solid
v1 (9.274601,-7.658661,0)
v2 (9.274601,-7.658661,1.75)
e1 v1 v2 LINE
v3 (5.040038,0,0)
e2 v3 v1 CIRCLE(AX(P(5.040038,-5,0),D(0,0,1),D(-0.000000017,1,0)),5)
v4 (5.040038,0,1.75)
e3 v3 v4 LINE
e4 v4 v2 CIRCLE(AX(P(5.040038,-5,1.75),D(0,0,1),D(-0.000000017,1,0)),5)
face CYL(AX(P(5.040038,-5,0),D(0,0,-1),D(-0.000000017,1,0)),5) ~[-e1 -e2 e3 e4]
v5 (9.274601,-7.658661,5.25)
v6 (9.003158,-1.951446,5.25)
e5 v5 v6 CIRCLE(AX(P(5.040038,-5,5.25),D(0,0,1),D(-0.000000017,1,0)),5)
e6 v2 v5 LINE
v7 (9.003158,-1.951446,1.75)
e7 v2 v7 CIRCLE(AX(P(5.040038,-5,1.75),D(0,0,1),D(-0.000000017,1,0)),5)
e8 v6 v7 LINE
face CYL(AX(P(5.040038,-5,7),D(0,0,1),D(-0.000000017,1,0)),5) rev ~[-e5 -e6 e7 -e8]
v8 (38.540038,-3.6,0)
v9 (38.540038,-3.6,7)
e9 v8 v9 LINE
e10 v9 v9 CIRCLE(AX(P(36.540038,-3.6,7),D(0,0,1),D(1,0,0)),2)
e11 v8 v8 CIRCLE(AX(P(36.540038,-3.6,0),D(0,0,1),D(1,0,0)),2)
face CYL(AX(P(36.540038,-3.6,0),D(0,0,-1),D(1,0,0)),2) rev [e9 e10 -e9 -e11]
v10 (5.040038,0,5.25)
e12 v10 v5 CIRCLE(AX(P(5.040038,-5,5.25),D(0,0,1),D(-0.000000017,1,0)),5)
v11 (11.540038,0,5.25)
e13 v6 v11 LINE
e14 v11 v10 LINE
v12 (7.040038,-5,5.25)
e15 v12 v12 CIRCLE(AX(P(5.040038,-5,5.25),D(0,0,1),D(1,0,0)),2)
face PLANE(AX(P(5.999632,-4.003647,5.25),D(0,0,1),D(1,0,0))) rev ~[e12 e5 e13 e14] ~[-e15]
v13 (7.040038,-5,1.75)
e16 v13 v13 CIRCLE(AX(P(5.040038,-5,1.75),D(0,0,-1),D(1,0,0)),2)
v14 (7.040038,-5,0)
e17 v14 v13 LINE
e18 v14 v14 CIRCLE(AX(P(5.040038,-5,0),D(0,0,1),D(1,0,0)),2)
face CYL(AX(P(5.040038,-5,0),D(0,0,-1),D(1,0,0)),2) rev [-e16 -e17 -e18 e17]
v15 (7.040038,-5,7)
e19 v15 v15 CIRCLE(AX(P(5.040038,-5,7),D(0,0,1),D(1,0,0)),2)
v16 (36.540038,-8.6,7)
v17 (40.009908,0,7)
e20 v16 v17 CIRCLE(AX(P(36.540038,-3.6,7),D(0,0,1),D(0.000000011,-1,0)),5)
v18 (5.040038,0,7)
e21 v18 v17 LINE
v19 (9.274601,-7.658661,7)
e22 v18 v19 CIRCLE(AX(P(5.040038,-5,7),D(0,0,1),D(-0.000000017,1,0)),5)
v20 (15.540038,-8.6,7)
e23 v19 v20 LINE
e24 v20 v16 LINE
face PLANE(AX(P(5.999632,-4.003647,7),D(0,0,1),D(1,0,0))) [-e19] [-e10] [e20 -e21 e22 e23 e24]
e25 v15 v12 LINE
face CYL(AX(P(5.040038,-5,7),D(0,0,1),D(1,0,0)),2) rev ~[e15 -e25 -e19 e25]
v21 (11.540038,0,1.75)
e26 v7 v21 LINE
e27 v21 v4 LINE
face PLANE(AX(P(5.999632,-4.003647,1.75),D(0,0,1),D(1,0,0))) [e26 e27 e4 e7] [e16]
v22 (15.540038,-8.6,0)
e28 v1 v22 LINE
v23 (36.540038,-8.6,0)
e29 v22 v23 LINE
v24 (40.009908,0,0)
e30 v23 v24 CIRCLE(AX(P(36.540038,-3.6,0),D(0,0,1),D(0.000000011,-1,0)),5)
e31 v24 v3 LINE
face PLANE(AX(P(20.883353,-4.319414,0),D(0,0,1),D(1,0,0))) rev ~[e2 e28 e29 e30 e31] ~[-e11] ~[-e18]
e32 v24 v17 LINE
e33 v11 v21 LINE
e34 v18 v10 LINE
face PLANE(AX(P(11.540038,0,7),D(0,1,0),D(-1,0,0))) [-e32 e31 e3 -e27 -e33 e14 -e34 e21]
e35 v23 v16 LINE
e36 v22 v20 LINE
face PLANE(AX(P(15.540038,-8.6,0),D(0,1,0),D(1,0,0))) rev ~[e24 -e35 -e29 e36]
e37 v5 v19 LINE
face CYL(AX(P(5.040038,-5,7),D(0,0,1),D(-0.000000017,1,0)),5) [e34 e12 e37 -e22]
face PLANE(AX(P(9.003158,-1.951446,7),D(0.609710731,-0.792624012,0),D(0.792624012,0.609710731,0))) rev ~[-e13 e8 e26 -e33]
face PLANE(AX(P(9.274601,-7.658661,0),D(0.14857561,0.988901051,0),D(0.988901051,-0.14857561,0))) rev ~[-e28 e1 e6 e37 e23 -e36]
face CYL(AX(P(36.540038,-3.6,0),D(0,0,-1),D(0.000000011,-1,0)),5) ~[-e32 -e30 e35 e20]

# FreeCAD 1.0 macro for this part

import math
import FreeCAD as App
import Part
import Sketcher
from FreeCAD import Vector
Q = App.Units.Quantity

doc = App.newDocument("Part")
body = doc.addObject("PartDesign::Body", "Body")

sketch1 = doc.addObject("Sketcher::SketchObject", "Sketch")
body.addObject(sketch1)
sketch1.AttachmentSupport = (doc.XY_Plane, [""])
sketch1.MapMode = "FlatFace"
sketch1.addGeometry(Part.LineSegment(Vector(40, 0, 0), Vector(5, 0, 0)), False)
sketch1.addGeometry(Part.ArcOfCircle(Part.Circle(Vector(5, -5, 0), Vector(0, 0, 1), 5), math.radians(90), math.radians(328)), False)
sketch1.addGeometry(Part.LineSegment(Vector(9.3, -7.7, 0), Vector(15.5, -8.6, 0)), False)
sketch1.addGeometry(Part.LineSegment(Vector(15.5, -8.6, 0), Vector(36.5, -8.6, 0)), False)
sketch1.addGeometry(Part.ArcOfCircle(Part.Circle(Vector(36.5, -3.6, 0), Vector(0, 0, 1), 5), math.radians(-90), math.radians(46)), False)
sketch1.addGeometry(Part.Circle(Vector(5, -5, 0), Vector(0, 0, 1), 2), False)
sketch1.addGeometry(Part.Circle(Vector(36.5, -3.6, 0), Vector(0, 0, 1), 2), False)
sketch1.addConstraint(Sketcher.Constraint("Tangent", 0, 2, 1, 1))
sketch1.addConstraint(Sketcher.Constraint("Coincident", 1, 2, 2, 1))
sketch1.addConstraint(Sketcher.Constraint("Coincident", 2, 2, 3, 1))
sketch1.addConstraint(Sketcher.Constraint("Tangent", 3, 2, 4, 1))
sketch1.addConstraint(Sketcher.Constraint("Coincident", 4, 2, 0, 1))
sketch1.addConstraint(Sketcher.Constraint("Horizontal", 0))
sketch1.addConstraint(Sketcher.Constraint("Horizontal", 3))
sketch1.addConstraint(Sketcher.Constraint("Coincident", 5, 3, 1, 3))
sketch1.addConstraint(Sketcher.Constraint("Coincident", 6, 3, 4, 3))
sketch1.addConstraint(Sketcher.Constraint("Equal", 1, 4))
sketch1.addConstraint(Sketcher.Constraint("Equal", 5, 6))
sketch1.addConstraint(Sketcher.Constraint("PointOnObject", 0, 2, -1))
sketch1.addConstraint(Sketcher.Constraint("Diameter", 5, Q("4 mm")))
sketch1.addConstraint(Sketcher.Constraint("Radius", 1, Q("5 mm")))
sketch1.addConstraint(Sketcher.Constraint("DistanceX", 3, 1, 3, 2, Q("21 mm")))
sketch1.addConstraint(Sketcher.Constraint("DistanceY", 4, 3, -1, 1, Q("3.6 mm")))
sketch1.addConstraint(Sketcher.Constraint("DistanceX", 1, 3, 4, 3, Q("31.5 mm")))
sketch1.addConstraint(Sketcher.Constraint("DistanceX", -1, 1, 1, 2, Q("9.274601 mm")))
sketch1.addConstraint(Sketcher.Constraint("DistanceX", -1, 1, 1, 3, Q("5.040038 mm")))
pad1 = doc.addObject("PartDesign::Pad", "Pad")
body.addObject(pad1)
pad1.Profile = sketch1
pad1.Length = 7

sketch2 = doc.addObject("Sketcher::SketchObject", "Sketch001")
body.addObject(sketch2)
sketch2.AttachmentSupport = (doc.XY_Plane, [""])
sketch2.MapMode = "FlatFace"
sketch2.AttachmentOffset = App.Placement(Vector(0, 0, 7), App.Rotation())
sketch2.addGeometry(Part.LineSegment(Vector(11.5, 0, 0), Vector(5, 0, 0)), False)
sketch2.addGeometry(Part.ArcOfCircle(Part.Circle(Vector(5, -5, 0), Vector(0, 0, 1), 5), math.radians(90), math.radians(398)), False)
sketch2.addGeometry(Part.LineSegment(Vector(9, -2, 0), Vector(11.5, 0, 0)), False)
sketch2.addConstraint(Sketcher.Constraint("Tangent", 0, 2, 1, 1))
sketch2.addConstraint(Sketcher.Constraint("Coincident", 1, 2, 2, 1))
sketch2.addConstraint(Sketcher.Constraint("Coincident", 2, 2, 0, 1))
sketch2.addConstraint(Sketcher.Constraint("Horizontal", 0))
sketch2.addConstraint(Sketcher.Constraint("PointOnObject", 0, 2, -1))
sketch2.addConstraint(Sketcher.Constraint("Radius", 1, Q("5 mm")))
sketch2.addConstraint(Sketcher.Constraint("DistanceX", 0, 2, 0, 1, Q("6.5 mm")))
sketch2.addConstraint(Sketcher.Constraint("DistanceX", -1, 1, 1, 3, Q("5.040038 mm")))
sketch2.addConstraint(Sketcher.Constraint("DistanceX", -1, 1, 1, 2, Q("9.003158 mm")))
pocket1 = doc.addObject("PartDesign::Pocket", "Pocket")
body.addObject(pocket1)
pocket1.Profile = sketch2
pocket1.Length = 5.25

sketch3 = doc.addObject("Sketcher::SketchObject", "Sketch002")
body.addObject(sketch3)
sketch3.AttachmentSupport = (doc.XY_Plane, [""])
sketch3.MapMode = "FlatFace"
sketch3.AttachmentOffset = App.Placement(Vector(0, 0, 7), App.Rotation())
sketch3.addGeometry(Part.LineSegment(Vector(11.5, 0, 0), Vector(5, 0, 0)), False)
sketch3.addGeometry(Part.ArcOfCircle(Part.Circle(Vector(5, -5, 0), Vector(0, 0, 1), 5), math.radians(90), math.radians(398)), False)
sketch3.addGeometry(Part.LineSegment(Vector(9, -2, 0), Vector(11.5, 0, 0)), False)
sketch3.addConstraint(Sketcher.Constraint("Tangent", 0, 2, 1, 1))
sketch3.addConstraint(Sketcher.Constraint("Coincident", 1, 2, 2, 1))
sketch3.addConstraint(Sketcher.Constraint("Coincident", 2, 2, 0, 1))
sketch3.addConstraint(Sketcher.Constraint("Horizontal", 0))
sketch3.addConstraint(Sketcher.Constraint("PointOnObject", 0, 2, -1))
sketch3.addConstraint(Sketcher.Constraint("Radius", 1, Q("5 mm")))
sketch3.addConstraint(Sketcher.Constraint("DistanceX", 0, 2, 0, 1, Q("6.5 mm")))
sketch3.addConstraint(Sketcher.Constraint("DistanceX", -1, 1, 1, 3, Q("5.040038 mm")))
sketch3.addConstraint(Sketcher.Constraint("DistanceX", -1, 1, 1, 2, Q("9.003158 mm")))
pad2 = doc.addObject("PartDesign::Pad", "Pad001")
body.addObject(pad2)
pad2.Profile = sketch3
pad2.Length = 1.75
pad2.Reversed = True

sketch4 = doc.addObject("Sketcher::SketchObject", "Sketch003")
body.addObject(sketch4)
sketch4.AttachmentSupport = (doc.XY_Plane, [""])
sketch4.MapMode = "FlatFace"
sketch4.AttachmentOffset = App.Placement(Vector(0, 0, 7), App.Rotation())
sketch4.addGeometry(Part.Circle(Vector(5, -5, 0), Vector(0, 0, 1), 2), False)
sketch4.addConstraint(Sketcher.Constraint("Diameter", 0, Q("4 mm")))
sketch4.addConstraint(Sketcher.Constraint("DistanceY", 0, 3, -1, 1, Q("5 mm")))
sketch4.addConstraint(Sketcher.Constraint("DistanceX", -1, 1, 0, 3, Q("5.040038 mm")))
pocket2 = doc.addObject("PartDesign::Pocket", "Pocket001")
body.addObject(pocket2)
pocket2.Profile = sketch4
pocket2.Length = 1.75

doc.recompute()
